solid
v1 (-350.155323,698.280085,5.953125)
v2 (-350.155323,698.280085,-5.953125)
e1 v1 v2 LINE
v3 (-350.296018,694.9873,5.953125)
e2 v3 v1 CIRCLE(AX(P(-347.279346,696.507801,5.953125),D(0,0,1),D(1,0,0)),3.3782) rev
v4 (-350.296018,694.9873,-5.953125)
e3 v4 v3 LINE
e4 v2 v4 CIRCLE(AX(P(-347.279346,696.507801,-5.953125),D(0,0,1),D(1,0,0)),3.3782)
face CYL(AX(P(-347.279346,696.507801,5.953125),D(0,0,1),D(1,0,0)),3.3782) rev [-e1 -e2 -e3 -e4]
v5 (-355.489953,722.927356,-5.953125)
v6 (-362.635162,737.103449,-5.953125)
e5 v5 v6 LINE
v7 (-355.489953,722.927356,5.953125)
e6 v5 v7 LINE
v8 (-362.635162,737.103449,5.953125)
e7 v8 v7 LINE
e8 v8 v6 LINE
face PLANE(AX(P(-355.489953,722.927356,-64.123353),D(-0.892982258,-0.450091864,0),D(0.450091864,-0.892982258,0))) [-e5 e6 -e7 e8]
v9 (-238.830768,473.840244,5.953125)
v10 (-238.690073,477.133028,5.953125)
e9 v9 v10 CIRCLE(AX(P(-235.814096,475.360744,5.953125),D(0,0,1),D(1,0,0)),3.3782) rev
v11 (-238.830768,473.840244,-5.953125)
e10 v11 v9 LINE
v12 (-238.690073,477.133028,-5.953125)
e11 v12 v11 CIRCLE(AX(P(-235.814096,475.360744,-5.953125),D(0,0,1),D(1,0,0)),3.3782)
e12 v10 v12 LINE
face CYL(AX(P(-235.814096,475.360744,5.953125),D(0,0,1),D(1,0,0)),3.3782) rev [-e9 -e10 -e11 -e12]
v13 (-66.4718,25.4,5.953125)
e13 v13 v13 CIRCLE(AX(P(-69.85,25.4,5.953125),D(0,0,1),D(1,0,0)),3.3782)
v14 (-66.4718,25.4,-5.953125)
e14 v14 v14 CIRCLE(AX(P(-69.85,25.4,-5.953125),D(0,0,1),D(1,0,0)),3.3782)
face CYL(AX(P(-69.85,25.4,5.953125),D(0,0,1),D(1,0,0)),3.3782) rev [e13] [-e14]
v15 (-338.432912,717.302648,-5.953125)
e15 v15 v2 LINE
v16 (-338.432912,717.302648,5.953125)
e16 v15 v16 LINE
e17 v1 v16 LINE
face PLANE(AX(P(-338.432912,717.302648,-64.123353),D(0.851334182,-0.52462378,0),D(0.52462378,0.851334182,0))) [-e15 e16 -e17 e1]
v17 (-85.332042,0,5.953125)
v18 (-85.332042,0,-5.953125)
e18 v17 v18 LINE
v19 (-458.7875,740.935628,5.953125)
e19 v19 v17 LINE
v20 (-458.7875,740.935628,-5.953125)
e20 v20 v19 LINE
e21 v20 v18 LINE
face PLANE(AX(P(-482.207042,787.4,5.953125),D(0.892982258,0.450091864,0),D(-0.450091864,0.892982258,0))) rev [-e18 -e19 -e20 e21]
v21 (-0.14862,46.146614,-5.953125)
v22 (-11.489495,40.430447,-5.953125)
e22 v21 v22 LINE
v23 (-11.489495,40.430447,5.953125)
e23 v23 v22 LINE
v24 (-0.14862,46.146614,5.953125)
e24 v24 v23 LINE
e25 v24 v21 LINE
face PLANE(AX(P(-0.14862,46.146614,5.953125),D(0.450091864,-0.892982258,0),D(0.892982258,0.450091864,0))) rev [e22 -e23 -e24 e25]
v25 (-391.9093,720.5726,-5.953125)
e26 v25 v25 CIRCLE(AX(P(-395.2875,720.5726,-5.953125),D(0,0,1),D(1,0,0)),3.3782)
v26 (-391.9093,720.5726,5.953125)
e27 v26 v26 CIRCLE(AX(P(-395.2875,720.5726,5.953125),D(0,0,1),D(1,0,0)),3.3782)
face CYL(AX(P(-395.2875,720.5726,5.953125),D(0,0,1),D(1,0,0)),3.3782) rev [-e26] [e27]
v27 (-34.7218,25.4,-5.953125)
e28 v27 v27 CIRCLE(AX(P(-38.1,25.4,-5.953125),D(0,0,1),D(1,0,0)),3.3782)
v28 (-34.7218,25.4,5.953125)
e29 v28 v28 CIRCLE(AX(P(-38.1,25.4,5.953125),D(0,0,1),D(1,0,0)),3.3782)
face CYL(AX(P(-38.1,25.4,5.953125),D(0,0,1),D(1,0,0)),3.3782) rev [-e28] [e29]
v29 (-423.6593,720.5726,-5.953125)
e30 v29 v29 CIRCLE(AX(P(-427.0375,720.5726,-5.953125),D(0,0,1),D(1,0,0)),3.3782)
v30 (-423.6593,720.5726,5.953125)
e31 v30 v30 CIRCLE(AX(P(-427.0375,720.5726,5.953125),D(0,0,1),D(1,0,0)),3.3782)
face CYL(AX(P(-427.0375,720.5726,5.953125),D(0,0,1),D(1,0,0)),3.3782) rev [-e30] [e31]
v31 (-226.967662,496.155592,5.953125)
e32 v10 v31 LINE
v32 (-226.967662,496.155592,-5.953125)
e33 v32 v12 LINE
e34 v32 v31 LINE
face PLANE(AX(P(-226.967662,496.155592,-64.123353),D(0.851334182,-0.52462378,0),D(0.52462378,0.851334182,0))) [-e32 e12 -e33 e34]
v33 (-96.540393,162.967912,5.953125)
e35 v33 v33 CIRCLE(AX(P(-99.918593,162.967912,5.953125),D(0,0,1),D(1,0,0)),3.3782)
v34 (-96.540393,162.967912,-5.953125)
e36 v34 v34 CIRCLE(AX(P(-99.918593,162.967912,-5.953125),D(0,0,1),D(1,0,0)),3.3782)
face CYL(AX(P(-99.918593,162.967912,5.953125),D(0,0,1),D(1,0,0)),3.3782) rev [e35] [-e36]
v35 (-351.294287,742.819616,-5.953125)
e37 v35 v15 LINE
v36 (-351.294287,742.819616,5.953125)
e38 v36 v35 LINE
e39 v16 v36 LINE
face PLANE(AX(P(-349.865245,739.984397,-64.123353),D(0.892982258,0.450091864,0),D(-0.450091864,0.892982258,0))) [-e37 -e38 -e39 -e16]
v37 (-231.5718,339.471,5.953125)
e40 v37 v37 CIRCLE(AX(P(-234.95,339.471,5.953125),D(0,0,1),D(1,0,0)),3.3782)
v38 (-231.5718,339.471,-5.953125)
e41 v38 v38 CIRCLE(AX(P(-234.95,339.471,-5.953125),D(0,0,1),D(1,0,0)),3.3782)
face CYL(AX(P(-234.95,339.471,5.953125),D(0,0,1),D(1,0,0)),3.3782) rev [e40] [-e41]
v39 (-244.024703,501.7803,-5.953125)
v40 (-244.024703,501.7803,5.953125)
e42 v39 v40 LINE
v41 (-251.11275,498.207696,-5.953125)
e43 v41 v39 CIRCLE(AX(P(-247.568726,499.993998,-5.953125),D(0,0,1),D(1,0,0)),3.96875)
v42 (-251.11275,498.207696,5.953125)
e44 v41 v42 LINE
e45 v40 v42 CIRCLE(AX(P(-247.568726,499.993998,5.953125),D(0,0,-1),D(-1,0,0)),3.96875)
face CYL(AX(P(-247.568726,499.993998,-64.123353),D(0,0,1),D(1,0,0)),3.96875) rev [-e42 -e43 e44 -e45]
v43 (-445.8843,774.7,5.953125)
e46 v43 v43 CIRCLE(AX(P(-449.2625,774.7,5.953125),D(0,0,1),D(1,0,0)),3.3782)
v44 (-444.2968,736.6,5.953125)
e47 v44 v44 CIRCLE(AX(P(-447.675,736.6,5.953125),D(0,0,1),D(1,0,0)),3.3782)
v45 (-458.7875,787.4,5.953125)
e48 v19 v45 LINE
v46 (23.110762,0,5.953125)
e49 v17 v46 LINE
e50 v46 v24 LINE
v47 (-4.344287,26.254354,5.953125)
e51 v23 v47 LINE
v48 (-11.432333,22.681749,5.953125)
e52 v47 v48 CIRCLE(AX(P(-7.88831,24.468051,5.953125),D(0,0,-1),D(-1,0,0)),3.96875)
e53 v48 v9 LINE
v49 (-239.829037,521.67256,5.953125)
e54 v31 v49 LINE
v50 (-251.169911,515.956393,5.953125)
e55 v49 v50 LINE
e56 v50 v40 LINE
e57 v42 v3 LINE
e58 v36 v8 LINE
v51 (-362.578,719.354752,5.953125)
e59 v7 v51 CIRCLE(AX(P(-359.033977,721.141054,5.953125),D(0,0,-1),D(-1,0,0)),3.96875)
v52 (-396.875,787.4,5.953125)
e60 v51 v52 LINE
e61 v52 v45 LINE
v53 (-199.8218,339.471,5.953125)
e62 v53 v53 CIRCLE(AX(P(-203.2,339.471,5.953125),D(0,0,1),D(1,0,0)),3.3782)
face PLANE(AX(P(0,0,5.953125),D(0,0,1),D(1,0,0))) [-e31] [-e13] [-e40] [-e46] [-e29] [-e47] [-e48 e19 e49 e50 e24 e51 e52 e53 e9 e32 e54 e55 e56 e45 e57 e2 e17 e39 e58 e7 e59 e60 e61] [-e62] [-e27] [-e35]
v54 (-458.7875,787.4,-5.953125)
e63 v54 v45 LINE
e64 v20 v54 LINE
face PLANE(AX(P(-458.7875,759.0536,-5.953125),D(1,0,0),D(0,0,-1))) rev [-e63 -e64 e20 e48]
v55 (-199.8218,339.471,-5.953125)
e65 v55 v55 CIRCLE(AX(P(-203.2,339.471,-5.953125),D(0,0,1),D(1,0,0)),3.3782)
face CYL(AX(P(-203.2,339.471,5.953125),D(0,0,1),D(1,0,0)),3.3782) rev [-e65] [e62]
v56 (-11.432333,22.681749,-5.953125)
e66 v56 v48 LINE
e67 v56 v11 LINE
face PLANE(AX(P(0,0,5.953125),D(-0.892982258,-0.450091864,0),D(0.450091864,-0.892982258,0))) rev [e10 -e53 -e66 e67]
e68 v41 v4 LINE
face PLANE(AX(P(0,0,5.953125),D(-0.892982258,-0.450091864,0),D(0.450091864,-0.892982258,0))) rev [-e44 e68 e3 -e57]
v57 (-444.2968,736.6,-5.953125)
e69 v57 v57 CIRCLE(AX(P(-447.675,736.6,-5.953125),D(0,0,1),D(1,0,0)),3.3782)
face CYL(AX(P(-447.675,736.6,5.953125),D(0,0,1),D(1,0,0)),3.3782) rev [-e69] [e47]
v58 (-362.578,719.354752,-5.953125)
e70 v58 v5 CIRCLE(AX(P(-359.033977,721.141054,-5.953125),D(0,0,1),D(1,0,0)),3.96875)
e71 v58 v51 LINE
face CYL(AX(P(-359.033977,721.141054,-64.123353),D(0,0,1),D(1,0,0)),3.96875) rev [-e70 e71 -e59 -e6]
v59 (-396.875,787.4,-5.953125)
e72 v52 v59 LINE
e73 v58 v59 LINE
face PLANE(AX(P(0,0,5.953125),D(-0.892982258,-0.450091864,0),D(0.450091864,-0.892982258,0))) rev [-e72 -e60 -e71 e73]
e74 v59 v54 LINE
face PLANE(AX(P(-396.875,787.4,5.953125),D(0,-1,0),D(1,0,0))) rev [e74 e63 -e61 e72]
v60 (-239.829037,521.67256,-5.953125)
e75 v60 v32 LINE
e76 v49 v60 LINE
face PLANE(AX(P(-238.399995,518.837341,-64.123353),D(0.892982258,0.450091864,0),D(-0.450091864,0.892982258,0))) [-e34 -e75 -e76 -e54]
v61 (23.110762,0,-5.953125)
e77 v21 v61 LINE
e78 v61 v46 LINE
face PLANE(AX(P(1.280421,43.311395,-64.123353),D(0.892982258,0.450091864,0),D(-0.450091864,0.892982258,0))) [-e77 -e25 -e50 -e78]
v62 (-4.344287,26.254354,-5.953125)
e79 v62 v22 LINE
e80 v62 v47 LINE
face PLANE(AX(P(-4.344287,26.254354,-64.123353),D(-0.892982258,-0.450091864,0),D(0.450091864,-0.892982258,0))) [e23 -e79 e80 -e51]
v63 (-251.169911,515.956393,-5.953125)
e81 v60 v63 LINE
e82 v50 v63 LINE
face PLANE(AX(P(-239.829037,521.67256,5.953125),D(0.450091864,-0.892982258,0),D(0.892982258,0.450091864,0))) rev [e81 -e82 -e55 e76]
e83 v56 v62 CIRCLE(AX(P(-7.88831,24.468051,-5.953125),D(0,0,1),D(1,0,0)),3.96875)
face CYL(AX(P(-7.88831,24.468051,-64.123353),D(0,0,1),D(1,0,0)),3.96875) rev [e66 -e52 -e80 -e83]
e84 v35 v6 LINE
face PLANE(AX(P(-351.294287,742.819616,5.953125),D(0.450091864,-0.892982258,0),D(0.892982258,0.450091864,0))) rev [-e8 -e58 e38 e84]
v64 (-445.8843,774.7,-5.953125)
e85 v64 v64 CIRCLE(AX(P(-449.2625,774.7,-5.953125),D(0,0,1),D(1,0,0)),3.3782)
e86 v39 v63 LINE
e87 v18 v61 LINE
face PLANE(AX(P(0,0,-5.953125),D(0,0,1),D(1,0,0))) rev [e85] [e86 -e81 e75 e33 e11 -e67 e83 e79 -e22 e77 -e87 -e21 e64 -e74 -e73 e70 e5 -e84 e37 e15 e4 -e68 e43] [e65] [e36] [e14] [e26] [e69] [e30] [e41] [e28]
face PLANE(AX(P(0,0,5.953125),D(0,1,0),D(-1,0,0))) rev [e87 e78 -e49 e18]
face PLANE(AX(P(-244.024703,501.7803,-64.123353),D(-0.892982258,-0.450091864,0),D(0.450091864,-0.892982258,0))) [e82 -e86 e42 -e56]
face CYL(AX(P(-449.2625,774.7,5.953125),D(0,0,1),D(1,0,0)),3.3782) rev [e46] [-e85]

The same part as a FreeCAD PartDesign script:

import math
import FreeCAD as App
import Part
import Sketcher
Q = App.Units.Quantity


def edges_at(feature, points):
    """Names of the edges that pass closest to the given points."""
    edges = feature.Shape.Edges
    near = lambda p: min(range(len(edges)), key=lambda i: edges[i].distToShape(Part.Vertex(*p))[0])
    return sorted({f"Edge{near(p) + 1}" for p in points})


def add_polygon(sketch, points):
    """Adds a closed chain of lines whose ends are joined by coincident constraints."""
    first, n = sketch.GeometryCount, len(points)
    for a, b in zip(points, points[1:] + points[:1]):
        sketch.addGeometry(Part.LineSegment(App.Vector(*a, 0), App.Vector(*b, 0)), False)
    for i in range(n):
        sketch.addConstraint(Sketcher.Constraint("Coincident", first + i, 2, first + (i + 1) % n, 1))

doc = App.newDocument("Part")
body = doc.addObject("PartDesign::Body", "Body")

sketch1 = body.newObject("Sketcher::SketchObject", "Sketch")
sketch1.AttachmentSupport = (doc.getObject("XY_Plane"), [""])
sketch1.MapMode = "FlatFace"
add_polygon(sketch1, [(0, 0), (-397, 787), (-482, 787), (-85, 0)])
sketch1.addConstraint([
    Sketcher.Constraint("Horizontal", 1),
    Sketcher.Constraint("Horizontal", 3),
    Sketcher.Constraint("Coincident", 3, 2, -1, 1),
    Sketcher.Constraint("Parallel", 0, 2),
    Sketcher.Constraint("DistanceY", -1, 1, 0, 2, Q("31 in")),
    Sketcher.Constraint("DistanceX", 0, 2, -1, 1, Q("15.625 in")),
    Sketcher.Constraint("DistanceX", 1, 2, 1, 1, 85.332042),
])
pad1 = body.newObject("PartDesign::Pad", "Pad")
pad1.Profile = sketch1
pad1.Length = Q("0.46875 in")
pad1.Midplane = True

sketch2 = body.newObject("Sketcher::SketchObject", "Sketch001")
sketch2.AttachmentSupport = (doc.getObject("XY_Plane"), [""])
sketch2.MapMode = "FlatFace"
sketch2.AttachmentOffset = App.Placement(App.Vector(0, 0, 0.234375 * 25.4), App.Rotation())
add_polygon(sketch2, [(-276, 378), (-276, 365), (-229, 365), (-229, 378)])
add_polygon(sketch2, [(-468, 759), (-468, 746), (-421, 746), (-421, 759)])
sketch2.addConstraint([
    Sketcher.Constraint("Vertical", 0),
    Sketcher.Constraint("Horizontal", 1),
    Sketcher.Constraint("Vertical", 2),
    Sketcher.Constraint("Horizontal", 3),
    Sketcher.Constraint("Vertical", 4),
    Sketcher.Constraint("Horizontal", 5),
    Sketcher.Constraint("Vertical", 6),
    Sketcher.Constraint("Horizontal", 7),
    Sketcher.Constraint("Equal", 3, 5),
    Sketcher.Constraint("Equal", 2, 4),
    Sketcher.Constraint("DistanceX", 1, 2, -1, 1, Q("9 in")),
    Sketcher.Constraint("DistanceY", 0, 2, 0, 1, Q("0.515 in")),
    Sketcher.Constraint("DistanceY", -1, 1, 2, 2, Q("14.88 in")),
    Sketcher.Constraint("DistanceY", -1, 1, 4, 2, Q("29.369 in")),
    Sketcher.Constraint("DistanceX", 5, 2, -1, 1, Q("16.5625 in")),
    Sketcher.Constraint("DistanceX", 1, 1, 1, 2, 47.232042),
])
pocket1 = body.newObject("PartDesign::Pocket", "Pocket")
pocket1.Profile = sketch2
pocket1.Type = "ThroughAll"

sketch3 = body.newObject("Sketcher::SketchObject", "Sketch002")
sketch3.AttachmentSupport = (doc.getObject("XY_Plane"), [""])
sketch3.MapMode = "FlatFace"
sketch3.AttachmentOffset = App.Placement(App.Vector(0, 0, 0.234375 * 25.4), App.Rotation())
sketch3.addGeometry([
    Part.LineSegment(App.Vector(-249.7, 513.1, 0), App.Vector(-244, 501.8, 0)),
    Part.ArcOfCircle(Part.Circle(App.Vector(-247.6, 500, 0), App.Vector(0, 0, 1), 4), math.radians(-153), math.radians(27)),
    Part.LineSegment(App.Vector(-251.1, 498.2, 0), App.Vector(-239.7, 475.5, 0)),
    Part.LineSegment(App.Vector(-239.7, 475.5, 0), App.Vector(-227, 496.2, 0)),
    Part.LineSegment(App.Vector(-227, 496.2, 0), App.Vector(-238.4, 518.8, 0)),
    Part.ArcOfCircle(Part.Circle(App.Vector(-244.1, 516, 0), App.Vector(0, 0, 1), 6.3), math.radians(27), math.radians(207)),
    Part.LineSegment(App.Vector(-362.6, 719.4, 0), App.Vector(-351.1, 696.7, 0)),
    Part.LineSegment(App.Vector(-351.1, 696.7, 0), App.Vector(-338.4, 717.3, 0)),
    Part.LineSegment(App.Vector(-338.4, 717.3, 0), App.Vector(-349.9, 740, 0)),
    Part.ArcOfCircle(Part.Circle(App.Vector(-355.5, 737.1, 0), App.Vector(0, 0, 1), 6.3), math.radians(27), math.radians(207)),
    Part.LineSegment(App.Vector(-361.2, 734.3, 0), App.Vector(-355.5, 722.9, 0)),
    Part.ArcOfCircle(Part.Circle(App.Vector(-359, 721.1, 0), App.Vector(0, 0, 1), 4), math.radians(-153), math.radians(27)),
    Part.LineSegment(App.Vector(-11.4, 22.7, 0), App.Vector(0, 0, 0)),
    Part.LineSegment(App.Vector(0, 0, 0), App.Vector(23.1, 0, 0)),
    Part.LineSegment(App.Vector(23.1, 0, 0), App.Vector(12.7, 20.6, 0)),
    Part.LineSegment(App.Vector(12.7, 20.6, 0), App.Vector(1.3, 43.3, 0)),
    Part.ArcOfCircle(Part.Circle(App.Vector(-4.4, 40.5, 0), App.Vector(0, 0, 1), 6.3), math.radians(27), math.radians(207)),
    Part.LineSegment(App.Vector(-10.1, 37.6, 0), App.Vector(-4.3, 26.3, 0)),
    Part.ArcOfCircle(Part.Circle(App.Vector(-7.9, 24.5, 0), App.Vector(0, 0, 1), 4), math.radians(-153), math.radians(27)),
], False)
sketch3.addConstraint([
    Sketcher.Constraint("Tangent", 0, 2, 1, 2),
    Sketcher.Constraint("Tangent", 1, 1, 2, 1),
    Sketcher.Constraint("Coincident", 2, 2, 3, 1),
    Sketcher.Constraint("Coincident", 3, 2, 4, 1),
    Sketcher.Constraint("Tangent", 4, 2, 5, 1),
    Sketcher.Constraint("Tangent", 5, 2, 0, 1),
    Sketcher.Constraint("Coincident", 6, 2, 7, 1),
    Sketcher.Constraint("Coincident", 7, 2, 8, 1),
    Sketcher.Constraint("Tangent", 8, 2, 9, 1),
    Sketcher.Constraint("Tangent", 9, 2, 10, 1),
    Sketcher.Constraint("Tangent", 10, 2, 11, 2),
    Sketcher.Constraint("Tangent", 11, 1, 6, 1),
    Sketcher.Constraint("Coincident", 12, 2, 13, 1),
    Sketcher.Constraint("Coincident", 13, 2, 14, 1),
    Sketcher.Constraint("Coincident", 14, 2, 15, 1),
    Sketcher.Constraint("Tangent", 15, 2, 16, 1),
    Sketcher.Constraint("Tangent", 16, 2, 17, 1),
    Sketcher.Constraint("Tangent", 17, 2, 18, 2),
    Sketcher.Constraint("Tangent", 18, 1, 12, 1),
    Sketcher.Constraint("Horizontal", 13),
    Sketcher.Constraint("Coincident", 12, 2, -1, 1),
    Sketcher.Constraint("Equal", 5, 9),
    Sketcher.Constraint("Equal", 1, 11),
    Sketcher.Constraint("Equal", 9, 16),
    Sketcher.Constraint("Equal", 11, 18),
    Sketcher.Constraint("Parallel", 0, 2),
    Sketcher.Constraint("Parallel", 2, 4),
    Sketcher.Constraint("Parallel", 4, 6),
    Sketcher.Constraint("Parallel", 3, 7),
    Sketcher.Constraint("Parallel", 6, 8),
    Sketcher.Constraint("Parallel", 8, 10),
    Sketcher.Constraint("Parallel", 10, 12),
    Sketcher.Constraint("Parallel", 12, 14),
    Sketcher.Constraint("Parallel", 14, 15),
    Sketcher.Constraint("Parallel", 15, 17),
    Sketcher.Constraint("Equal", 2, 4),
    Sketcher.Constraint("Equal", 4, 6),
    Sketcher.Constraint("Equal", 6, 8),
    Sketcher.Constraint("Equal", 8, 12),
    Sketcher.Constraint("Equal", 12, 15),
    Sketcher.Constraint("Equal", 10, 17),
    Sketcher.Constraint("Radius", 5, Q("0.25 in")),
    Sketcher.Constraint("Distance", 2, Q("1 in")),
    Sketcher.Constraint("Radius", 1, Q("0.15625 in")),
    Sketcher.Constraint("Distance", 0, Q("0.5 in")),
    Sketcher.Constraint("DistanceX", 13, 1, 13, 2, 23.110762),
    Sketcher.Constraint("DistanceY", -1, 1, 0, 2, 501.7803),
    Sketcher.Constraint("DistanceX", 11, 1, -1, 1, 362.578),
    Sketcher.Constraint("DistanceX", 1, 1, -1, 1, 251.11275),
    Sketcher.Constraint("DistanceY", -1, 1, 7, 2, 717.302648),
])
pad2 = body.newObject("PartDesign::Pad", "Pad001")
pad2.Profile = sketch3
pad2.Length = Q("0.46875 in")
pad2.Reversed = True

sketch4 = body.newObject("Sketcher::SketchObject", "Sketch003")
sketch4.AttachmentSupport = (doc.getObject("XY_Plane"), [""])
sketch4.MapMode = "FlatFace"
sketch4.AttachmentOffset = App.Placement(App.Vector(0, 0, 0.234375 * 25.4), App.Rotation())
sketch4.addGeometry([
    Part.Circle(App.Vector(-99.9, 163, 0), App.Vector(0, 0, 1), 3.4),
    Part.Circle(App.Vector(-427, 720.6, 0), App.Vector(0, 0, 1), 3.4),
    Part.Circle(App.Vector(-395.3, 720.6, 0), App.Vector(0, 0, 1), 3.4),
    Part.Circle(App.Vector(-203.2, 339.5, 0), App.Vector(0, 0, 1), 3.4),
    Part.Circle(App.Vector(-234.9, 339.5, 0), App.Vector(0, 0, 1), 3.4),
    Part.Circle(App.Vector(-69.8, 25.4, 0), App.Vector(0, 0, 1), 3.4),
    Part.Circle(App.Vector(-38.1, 25.4, 0), App.Vector(0, 0, 1), 3.4),
], False)
sketch4.addConstraint([
    Sketcher.Constraint("Equal", 0, 1),
    Sketcher.Constraint("Equal", 1, 2),
    Sketcher.Constraint("Equal", 2, 3),
    Sketcher.Constraint("Equal", 3, 4),
    Sketcher.Constraint("Equal", 4, 5),
    Sketcher.Constraint("Equal", 5, 6),
    Sketcher.Constraint("Horizontal", 1, 3, 2, 3),
    Sketcher.Constraint("Horizontal", 3, 3, 4, 3),
    Sketcher.Constraint("Horizontal", 5, 3, 6, 3),
    Sketcher.Constraint("Diameter", 0, Q("0.266 in")),
    Sketcher.Constraint("DistanceX", 3, 3, -1, 1, Q("8 in")),
    Sketcher.Constraint("DistanceY", -1, 1, 5, 3, Q("1 in")),
    Sketcher.Constraint("DistanceX", 6, 3, -1, 1, Q("1.5 in")),
    Sketcher.Constraint("DistanceX", 4, 3, 5, 3, Q("6.5 in")),
    Sketcher.Constraint("DistanceX", 4, 3, -1, 1, Q("9.25 in")),
    Sketcher.Constraint("DistanceX", 1, 3, 2, 3, Q("1.25 in")),
    Sketcher.Constraint("DistanceX", 1, 3, -1, 1, Q("16.8125 in")),
    Sketcher.Constraint("DistanceY", -1, 1, 1, 3, Q("28.369 in")),
    Sketcher.Constraint("DistanceY", -1, 1, 3, 3, Q("13.365 in")),
    Sketcher.Constraint("DistanceY", -1, 1, 0, 3, 162.967912),
    Sketcher.Constraint("DistanceX", 0, 3, -1, 1, 99.918593),
])
doc.recompute()
hole = body.newObject("PartDesign::Hole", "Hole")
hole.Profile = sketch4
hole.ThreadType = "None"
hole.Diameter = Q("0.266 in")
hole.DepthType = "ThroughAll"

sketch5 = body.newObject("Sketcher::SketchObject", "Sketch004")
sketch5.AttachmentSupport = (doc.getObject("XY_Plane"), [""])
sketch5.MapMode = "FlatFace"
sketch5.AttachmentOffset = App.Placement(App.Vector(0, 0, 0.234375 * 25.4), App.Rotation())
add_polygon(sketch5, [(-482, 787), (-482, 759), (-459, 759), (-459, 787)])
sketch5.addConstraint([
    Sketcher.Constraint("Vertical", 0),
    Sketcher.Constraint("Horizontal", 1),
    Sketcher.Constraint("Vertical", 2),
    Sketcher.Constraint("Horizontal", 3),
    Sketcher.Constraint("DistanceY", -1, 1, 2, 2, Q("31 in")),
    Sketcher.Constraint("DistanceY", 0, 2, 0, 1, Q("1.116 in")),
    Sketcher.Constraint("DistanceX", 1, 2, -1, 1, Q("18.0625 in")),
    Sketcher.Constraint("DistanceX", 1, 1, 1, 2, 23.419542),
])
pocket2 = body.newObject("PartDesign::Pocket", "Pocket001")
pocket2.Profile = sketch5
pocket2.Type = "ThroughAll"

sketch6 = body.newObject("Sketcher::SketchObject", "Sketch005")
sketch6.AttachmentSupport = (doc.getObject("XY_Plane"), [""])
sketch6.MapMode = "FlatFace"
sketch6.AttachmentOffset = App.Placement(App.Vector(0, 0, 0.234375 * 25.4), App.Rotation())
sketch6.addGeometry([
    Part.Circle(App.Vector(-424.1, 759.1, 0), App.Vector(0, 0, 1), 3.4),
    Part.Circle(App.Vector(-424.1, 746, 0), App.Vector(0, 0, 1), 3.4),
    Part.Circle(App.Vector(-232, 378, 0), App.Vector(0, 0, 1), 3.4),
    Part.Circle(App.Vector(-232, 364.9, 0), App.Vector(0, 0, 1), 3.4),
], False)
sketch6.addConstraint([
    Sketcher.Constraint("Equal", 0, 1),
    Sketcher.Constraint("Equal", 1, 2),
    Sketcher.Constraint("Equal", 2, 3),
    Sketcher.Constraint("Vertical", 0, 3, 1, 3),
    Sketcher.Constraint("Vertical", 2, 3, 3, 3),
    Sketcher.Constraint("Diameter", 0, Q("0.27 in")),
    Sketcher.Constraint("DistanceY", -1, 1, 2, 3, Q("14.88 in")),
    Sketcher.Constraint("DistanceY", -1, 1, 0, 3, Q("29.884 in")),
    Sketcher.Constraint("DistanceY", -1, 1, 1, 3, Q("29.369 in")),
    Sketcher.Constraint("DistanceX", 2, 3, -1, 1, Q("9.135 in")),
    Sketcher.Constraint("DistanceY", -1, 1, 3, 3, Q("14.365 in")),
    Sketcher.Constraint("DistanceX", 1, 3, 2, 3, Q("7.5625 in")),
])
pocket3 = body.newObject("PartDesign::Pocket", "Pocket002")
pocket3.Profile = sketch6
pocket3.Type = "ThroughAll"

sketch7 = body.newObject("Sketcher::SketchObject", "Sketch006")
sketch7.AttachmentSupport = (doc.getObject("XY_Plane"), [""])
sketch7.MapMode = "FlatFace"
sketch7.AttachmentOffset = App.Placement(App.Vector(0, 0, 0.234375 * 25.4), App.Rotation())
sketch7.addGeometry([
    Part.Circle(App.Vector(-447.7, 736.6, 0), App.Vector(0, 0, 1), 3.4),
    Part.Circle(App.Vector(-449.3, 774.7, 0), App.Vector(0, 0, 1), 3.4),
], False)
sketch7.addConstraint([
    Sketcher.Constraint("Equal", 0, 1),
    Sketcher.Constraint("Diameter", 0, Q("0.266 in")),
    Sketcher.Constraint("DistanceY", -1, 1, 0, 3, Q("29 in")),
    Sketcher.Constraint("DistanceY", -1, 1, 1, 3, Q("30.5 in")),
    Sketcher.Constraint("DistanceX", 0, 3, -1, 1, Q("17.625 in")),
    Sketcher.Constraint("DistanceX", 1, 3, -1, 1, Q("17.6875 in")),
])
doc.recompute()
hole2 = body.newObject("PartDesign::Hole", "Hole001")
hole2.Profile = sketch7
hole2.ThreadType = "None"
hole2.Diameter = Q("0.266 in")
hole2.DepthType = "ThroughAll"

sketch8 = body.newObject("Sketcher::SketchObject", "Sketch007")
sketch8.AttachmentSupport = (doc.getObject("XY_Plane"), [""])
sketch8.MapMode = "FlatFace"
sketch8.AttachmentOffset = App.Placement(App.Vector(0, 0, 0.234375 * 25.4), App.Rotation())
add_polygon(sketch8, [(-458.8, 740.9), (-458.8, 746), (-461.3, 746)])
sketch8.addConstraint([
    Sketcher.Constraint("Vertical", 0),
    Sketcher.Constraint("Horizontal", 1),
    Sketcher.Constraint("DistanceX", 0, 2, -1, 1, Q("18.0625 in")),
    Sketcher.Constraint("DistanceY", -1, 1, 0, 2, Q("29.369 in")),
    Sketcher.Constraint("Distance", 2, 5.640619),
    Sketcher.Constraint("DistanceX", 1, 2, 1, 1, 2.538797),
])
pocket4 = body.newObject("PartDesign::Pocket", "Pocket003")
pocket4.Profile = sketch8
pocket4.Type = "ThroughAll"

sketch9 = body.newObject("Sketcher::SketchObject", "Sketch008")
sketch9.AttachmentSupport = (doc.getObject("XY_Plane"), [""])
sketch9.MapMode = "FlatFace"
sketch9.AttachmentOffset = App.Placement(App.Vector(0, 0, 0.234375 * 25.4), App.Rotation())
sketch9.addGeometry([
    Part.LineSegment(App.Vector(-458.8, 746, 0), App.Vector(-458.8, 759.1, 0)),
    Part.LineSegment(App.Vector(-458.8, 759.1, 0), App.Vector(-427.5, 759.1, 0)),
    Part.ArcOfCircle(Part.Circle(App.Vector(-424.1, 759.1, 0), App.Vector(0, 0, 1), 3.4), math.radians(0), math.radians(180)),
    Part.LineSegment(App.Vector(-420.7, 759.1, 0), App.Vector(-420.7, 746, 0)),
    Part.ArcOfCircle(Part.Circle(App.Vector(-424.1, 746, 0), App.Vector(0, 0, 1), 3.4), math.radians(180), math.radians(360)),
    Part.LineSegment(App.Vector(-427.5, 746, 0), App.Vector(-458.8, 746, 0)),
    Part.LineSegment(App.Vector(-269.2, 364.9, 0), App.Vector(-275.8, 378, 0)),
    Part.LineSegment(App.Vector(-275.8, 378, 0), App.Vector(-235.5, 378, 0)),
    Part.ArcOfCircle(Part.Circle(App.Vector(-232, 378, 0), App.Vector(0, 0, 1), 3.4), math.radians(0), math.radians(180)),
    Part.LineSegment(App.Vector(-228.6, 378, 0), App.Vector(-228.6, 364.9, 0)),
    Part.ArcOfCircle(Part.Circle(App.Vector(-232, 364.9, 0), App.Vector(0, 0, 1), 3.4), math.radians(180), math.radians(360)),
    Part.LineSegment(App.Vector(-235.5, 364.9, 0), App.Vector(-269.2, 364.9, 0)),
], False)
sketch9.addConstraint([
    Sketcher.Constraint("Coincident", 0, 2, 1, 1),
    Sketcher.Constraint("Coincident", 1, 2, 2, 2),
    Sketcher.Constraint("Tangent", 2, 1, 3, 1),
    Sketcher.Constraint("Tangent", 3, 2, 4, 2),
    Sketcher.Constraint("Coincident", 4, 1, 5, 1),
    Sketcher.Constraint("Coincident", 5, 2, 0, 1),
    Sketcher.Constraint("Coincident", 6, 2, 7, 1),
    Sketcher.Constraint("Coincident", 7, 2, 8, 2),
    Sketcher.Constraint("Tangent", 8, 1, 9, 1),
    Sketcher.Constraint("Tangent", 9, 2, 10, 2),
    Sketcher.Constraint("Coincident", 10, 1, 11, 1),
    Sketcher.Constraint("Coincident", 11, 2, 6, 1),
    Sketcher.Constraint("Vertical", 0),
    Sketcher.Constraint("Horizontal", 1),
    Sketcher.Constraint("Vertical", 3),
    Sketcher.Constraint("Horizontal", 5),
    Sketcher.Constraint("Horizontal", 7),
    Sketcher.Constraint("Vertical", 9),
    Sketcher.Constraint("Horizontal", 11),
    Sketcher.Constraint("Equal", 2, 4),
    Sketcher.Constraint("Equal", 4, 8),
    Sketcher.Constraint("Equal", 8, 10),
    Sketcher.Constraint("Horizontal", 2, 3, 0, 2),
    Sketcher.Constraint("Horizontal", 3, 2, 4, 1),
    Sketcher.Constraint("Horizontal", 8, 3, 6, 2),
    Sketcher.Constraint("Horizontal", 9, 2, 10, 1),
    Sketcher.Constraint("Equal", 3, 9),
    Sketcher.Constraint("DistanceX", 8, 1, -1, 1, Q("9 in")),
    Sketcher.Constraint("Radius", 2, Q("0.135 in")),
    Sketcher.Constraint("DistanceX", 1, 1, 1, 2, Q("1.23 in")),
    Sketcher.Constraint("DistanceY", 0, 1, 0, 2, Q("0.515 in")),
    Sketcher.Constraint("DistanceY", -1, 1, 8, 3, Q("14.88 in")),
    Sketcher.Constraint("DistanceY", -1, 1, 2, 3, Q("29.884 in")),
    Sketcher.Constraint("DistanceX", 0, 2, -1, 1, Q("18.0625 in")),
    Sketcher.Constraint("DistanceX", 7, 1, 7, 2, 40.374042),
    Sketcher.Constraint("DistanceX", 11, 2, 11, 1, 33.780797),
])
pad3 = body.newObject("PartDesign::Pad", "Pad002")
pad3.Profile = sketch9
pad3.Length = Q("0.46875 in")
pad3.Reversed = True

sketch10 = body.newObject("Sketcher::SketchObject", "Sketch009")
sketch10.AttachmentSupport = (doc.getObject("XY_Plane"), [""])
sketch10.MapMode = "FlatFace"
sketch10.AttachmentOffset = App.Placement(App.Vector(0, 0, -0.234375 * 25.4), App.Rotation())
add_polygon(sketch10, [(-350, 740), (-361, 734), (-364, 740), (-353, 746)])
add_polygon(sketch10, [(-238, 519), (-250, 513), (-253, 519), (-241, 525)])
add_polygon(sketch10, [(1, 43), (-10, 38), (-13, 43), (-2, 49)])
sketch10.addConstraint([
    Sketcher.Constraint("Perpendicular", 0, 1),
    Sketcher.Constraint("Perpendicular", 1, 2),
    Sketcher.Constraint("Perpendicular", 2, 3),
    Sketcher.Constraint("Perpendicular", 3, 4),
    Sketcher.Constraint("Perpendicular", 4, 5),
    Sketcher.Constraint("Perpendicular", 5, 6),
    Sketcher.Constraint("Perpendicular", 6, 7),
    Sketcher.Constraint("Perpendicular", 7, 8),
    Sketcher.Constraint("Perpendicular", 8, 9),
    Sketcher.Constraint("Perpendicular", 9, 10),
    Sketcher.Constraint("Perpendicular", 10, 11),
    Sketcher.Constraint("Equal", 2, 4),
    Sketcher.Constraint("Equal", 3, 5),
    Sketcher.Constraint("Equal", 6, 8),
    Sketcher.Constraint("Equal", 7, 9),
    Sketcher.Constraint("Distance", 0, Q("0.5 in")),
    Sketcher.Constraint("Distance", 1, Q("0.25 in")),
    Sketcher.Constraint("DistanceX", 5, 2, 8, 2, 242.5385),
    Sketcher.Constraint("DistanceX", 0, 2, -1, 1, 361.20612),
    Sketcher.Constraint("DistanceY", -1, 1, 0, 2, 734.268231),
    Sketcher.Constraint("DistanceY", -1, 1, 1, 2, 739.938668),
    Sketcher.Constraint("DistanceX", 4, 2, -1, 1, 249.74087),
    Sketcher.Constraint("DistanceY", -1, 1, 5, 2, 518.791612),
    Sketcher.Constraint("DistanceY", -1, 1, 8, 2, 37.595228),
])
pad4 = body.newObject("PartDesign::Pad", "Pad003")
pad4.Profile = sketch10
pad4.Length = Q("0.46875 in")

sketch11 = body.newObject("Sketcher::SketchObject", "Sketch010")
sketch11.AttachmentSupport = (doc.getObject("XY_Plane"), [""])
sketch11.MapMode = "FlatFace"
sketch11.AttachmentOffset = App.Placement(App.Vector(0, 0, -0.234375 * 25.4), App.Rotation())
add_polygon(sketch11, [(-364.1, 739.9), (-352.7, 745.7), (-351.3, 742.8), (-362.6, 737.1)])
add_polygon(sketch11, [(-252.6, 518.8), (-241.3, 524.5), (-239.8, 521.7), (-251.2, 516)])
add_polygon(sketch11, [(-12.9, 43.3), (-1.6, 49), (-0.1, 46.1), (-11.5, 40.4)])
sketch11.addConstraint([
    Sketcher.Constraint("Perpendicular", 0, 1),
    Sketcher.Constraint("Perpendicular", 1, 2),
    Sketcher.Constraint("Perpendicular", 2, 3),
    Sketcher.Constraint("Perpendicular", 3, 4),
    Sketcher.Constraint("Perpendicular", 4, 5),
    Sketcher.Constraint("Perpendicular", 5, 6),
    Sketcher.Constraint("Perpendicular", 6, 7),
    Sketcher.Constraint("Perpendicular", 7, 8),
    Sketcher.Constraint("Perpendicular", 8, 9),
    Sketcher.Constraint("Perpendicular", 9, 10),
    Sketcher.Constraint("Perpendicular", 10, 11),
    Sketcher.Constraint("Equal", 2, 4),
    Sketcher.Constraint("Equal", 3, 5),
    Sketcher.Constraint("Equal", 6, 8),
    Sketcher.Constraint("Equal", 7, 9),
    Sketcher.Constraint("Distance", 0, Q("0.5 in")),
    Sketcher.Constraint("DistanceY", 7, 2, 1, 2, Q("8.8200002 in")),
    Sketcher.Constraint("Distance", 1, Q("0.125 in")),
    Sketcher.Constraint("DistanceY", 5, 2, 0, 2, Q("8.8181998 in")),
    Sketcher.Constraint("DistanceY", 9, 2, 7, 2, 472.644998),
    Sketcher.Constraint("DistanceX", 5, 2, 11, 2, 226.9105),
    Sketcher.Constraint("DistanceX", 0, 2, -1, 1, 352.723329),
    Sketcher.Constraint("DistanceY", -1, 1, 2, 2, 737.103449),
    Sketcher.Constraint("DistanceX", 4, 2, -1, 1, 241.258078),
])
pocket5 = body.newObject("PartDesign::Pocket", "Pocket004")
pocket5.Profile = sketch11
pocket5.Type = "ThroughAll"
pocket5.Reversed = True
doc.recompute()

fillet = body.newObject("PartDesign::Fillet", "Fillet")
fillet.Base = (pocket5, edges_at(pocket5, [(-239.68, 475.526, 0), (-351.146, 696.673, 0)]))
fillet.Radius = Q("0.133 in")

doc.recompute()
